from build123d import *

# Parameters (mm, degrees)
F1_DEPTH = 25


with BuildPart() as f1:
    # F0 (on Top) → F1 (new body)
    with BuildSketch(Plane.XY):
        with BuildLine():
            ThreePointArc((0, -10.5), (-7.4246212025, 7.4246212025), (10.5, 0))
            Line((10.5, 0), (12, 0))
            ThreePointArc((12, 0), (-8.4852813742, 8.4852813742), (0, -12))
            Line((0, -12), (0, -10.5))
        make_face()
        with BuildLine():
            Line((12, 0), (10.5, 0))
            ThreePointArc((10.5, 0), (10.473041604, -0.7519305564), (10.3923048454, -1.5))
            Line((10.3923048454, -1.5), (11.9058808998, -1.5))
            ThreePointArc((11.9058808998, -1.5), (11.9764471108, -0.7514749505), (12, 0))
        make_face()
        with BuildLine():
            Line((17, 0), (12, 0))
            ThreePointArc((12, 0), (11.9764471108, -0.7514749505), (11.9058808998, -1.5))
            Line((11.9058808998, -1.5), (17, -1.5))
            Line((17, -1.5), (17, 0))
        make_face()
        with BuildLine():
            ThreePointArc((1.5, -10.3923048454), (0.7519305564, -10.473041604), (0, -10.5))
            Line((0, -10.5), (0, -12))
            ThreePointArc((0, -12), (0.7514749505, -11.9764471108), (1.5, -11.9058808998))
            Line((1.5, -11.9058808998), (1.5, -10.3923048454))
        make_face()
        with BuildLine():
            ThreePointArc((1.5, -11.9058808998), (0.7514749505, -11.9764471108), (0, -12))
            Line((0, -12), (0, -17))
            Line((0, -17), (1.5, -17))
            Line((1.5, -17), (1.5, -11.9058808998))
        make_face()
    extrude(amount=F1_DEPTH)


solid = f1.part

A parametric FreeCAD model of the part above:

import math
import FreeCAD as App
import Part
import Sketcher

V = App.Vector
Q = App.Units.Quantity

doc = App.newDocument("Part")
params = doc.addObject("Spreadsheet::Sheet", "Params")
for row, (alias, value) in enumerate([
    ("sketch1_radius", "12 mm"),
    ("sketch1_radius2", "10.5 mm"),
    ("sketch1_width", "5 mm"),
    ("sketch1_width2", "1.5 mm"),
    ("pad1_length", "25 mm"),
], start=1):
    params.set(f"A{row}", alias)
    params.set(f"B{row}", "=" + value)
    params.setAlias(f"B{row}", alias)

body = doc.addObject("PartDesign::Body", "Body")

sketch1 = body.newObject("Sketcher::SketchObject", "Sketch")
sketch1.AttachmentSupport = (doc.getObject("XY_Plane"), [""])
sketch1.MapMode = "FlatFace"
sketch1.addGeometry([
    Part.ArcOfCircle(Part.Circle(V(0, 0, 0), V(0, 0, 1), 10.5), math.radians(0), math.radians(270)),
    Part.ArcOfCircle(Part.Circle(V(0, 0, 0), V(0, 0, 1), 10.5), math.radians(-8.21), math.radians(0)),
    Part.LineSegment(V(10.4, -1.5, 0), V(17, -1.5, 0)),
    Part.LineSegment(V(17, -1.5, 0), V(17, 0, 0)),
    Part.LineSegment(V(17, 0, 0), V(12, 0, 0)),
    Part.ArcOfCircle(Part.Circle(V(0, 0, 0), V(0, 0, 1), 12), math.radians(0), math.radians(270)),
    Part.LineSegment(V(0, -12, 0), V(0, -17, 0)),
    Part.LineSegment(V(0, -17, 0), V(1.5, -17, 0)),
    Part.LineSegment(V(1.5, -17, 0), V(1.5, -10.4, 0)),
    Part.ArcOfCircle(Part.Circle(V(0, 0, 0), V(0, 0, 1), 10.5), math.radians(-90), math.radians(-81.79)),
], False)
sketch1.addConstraint([
    Sketcher.Constraint("Tangent", 0, 1, 1, 2),
    Sketcher.Constraint("Coincident", 1, 1, 2, 1),
    Sketcher.Constraint("Coincident", 2, 2, 3, 1),
    Sketcher.Constraint("Coincident", 3, 2, 4, 1),
    Sketcher.Constraint("Coincident", 4, 2, 5, 1),
    Sketcher.Constraint("Coincident", 5, 2, 6, 1),
    Sketcher.Constraint("Coincident", 6, 2, 7, 1),
    Sketcher.Constraint("Coincident", 7, 2, 8, 1),
    Sketcher.Constraint("Coincident", 8, 2, 9, 2),
    Sketcher.Constraint("Tangent", 9, 1, 0, 2),
    Sketcher.Constraint("Horizontal", 2),
    Sketcher.Constraint("Vertical", 3),
    Sketcher.Constraint("Horizontal", 4),
    Sketcher.Constraint("Vertical", 6),
    Sketcher.Constraint("Horizontal", 7),
    Sketcher.Constraint("Vertical", 8),
    Sketcher.Constraint("Coincident", 0, 3, -1, 1),
    Sketcher.Constraint("Coincident", 5, 3, -1, 1),
    Sketcher.Constraint("Equal", 0, 1),
    Sketcher.Constraint("Equal", 1, 9),
    Sketcher.Constraint("PointOnObject", 0, 1, -1),
    Sketcher.Constraint("PointOnObject", 3, 2, -1),
    Sketcher.Constraint("PointOnObject", 5, 2, -2),
    Sketcher.Constraint("PointOnObject", 9, 1, -2),
    Sketcher.Constraint("Equal", 7, 3),
    Sketcher.Constraint("Equal", 4, 6),
    Sketcher.Constraint("Radius", 5, Q("12 mm")),
    Sketcher.Constraint("Radius", 0, Q("10.5 mm")),
    Sketcher.Constraint("DistanceX", 4, 2, 4, 1, Q("5 mm")),
    Sketcher.Constraint("DistanceX", 7, 1, 7, 2, Q("1.5 mm")),
])
sketch1.setExpression("Constraints[26]", "Params.sketch1_radius")
sketch1.setExpression("Constraints[27]", "Params.sketch1_radius2")
sketch1.setExpression("Constraints[28]", "Params.sketch1_width")
sketch1.setExpression("Constraints[29]", "Params.sketch1_width2")
pad1 = body.newObject("PartDesign::Pad", "Pad")
pad1.Profile = sketch1
pad1.setExpression("Length", "Params.pad1_length")

doc.recompute()
